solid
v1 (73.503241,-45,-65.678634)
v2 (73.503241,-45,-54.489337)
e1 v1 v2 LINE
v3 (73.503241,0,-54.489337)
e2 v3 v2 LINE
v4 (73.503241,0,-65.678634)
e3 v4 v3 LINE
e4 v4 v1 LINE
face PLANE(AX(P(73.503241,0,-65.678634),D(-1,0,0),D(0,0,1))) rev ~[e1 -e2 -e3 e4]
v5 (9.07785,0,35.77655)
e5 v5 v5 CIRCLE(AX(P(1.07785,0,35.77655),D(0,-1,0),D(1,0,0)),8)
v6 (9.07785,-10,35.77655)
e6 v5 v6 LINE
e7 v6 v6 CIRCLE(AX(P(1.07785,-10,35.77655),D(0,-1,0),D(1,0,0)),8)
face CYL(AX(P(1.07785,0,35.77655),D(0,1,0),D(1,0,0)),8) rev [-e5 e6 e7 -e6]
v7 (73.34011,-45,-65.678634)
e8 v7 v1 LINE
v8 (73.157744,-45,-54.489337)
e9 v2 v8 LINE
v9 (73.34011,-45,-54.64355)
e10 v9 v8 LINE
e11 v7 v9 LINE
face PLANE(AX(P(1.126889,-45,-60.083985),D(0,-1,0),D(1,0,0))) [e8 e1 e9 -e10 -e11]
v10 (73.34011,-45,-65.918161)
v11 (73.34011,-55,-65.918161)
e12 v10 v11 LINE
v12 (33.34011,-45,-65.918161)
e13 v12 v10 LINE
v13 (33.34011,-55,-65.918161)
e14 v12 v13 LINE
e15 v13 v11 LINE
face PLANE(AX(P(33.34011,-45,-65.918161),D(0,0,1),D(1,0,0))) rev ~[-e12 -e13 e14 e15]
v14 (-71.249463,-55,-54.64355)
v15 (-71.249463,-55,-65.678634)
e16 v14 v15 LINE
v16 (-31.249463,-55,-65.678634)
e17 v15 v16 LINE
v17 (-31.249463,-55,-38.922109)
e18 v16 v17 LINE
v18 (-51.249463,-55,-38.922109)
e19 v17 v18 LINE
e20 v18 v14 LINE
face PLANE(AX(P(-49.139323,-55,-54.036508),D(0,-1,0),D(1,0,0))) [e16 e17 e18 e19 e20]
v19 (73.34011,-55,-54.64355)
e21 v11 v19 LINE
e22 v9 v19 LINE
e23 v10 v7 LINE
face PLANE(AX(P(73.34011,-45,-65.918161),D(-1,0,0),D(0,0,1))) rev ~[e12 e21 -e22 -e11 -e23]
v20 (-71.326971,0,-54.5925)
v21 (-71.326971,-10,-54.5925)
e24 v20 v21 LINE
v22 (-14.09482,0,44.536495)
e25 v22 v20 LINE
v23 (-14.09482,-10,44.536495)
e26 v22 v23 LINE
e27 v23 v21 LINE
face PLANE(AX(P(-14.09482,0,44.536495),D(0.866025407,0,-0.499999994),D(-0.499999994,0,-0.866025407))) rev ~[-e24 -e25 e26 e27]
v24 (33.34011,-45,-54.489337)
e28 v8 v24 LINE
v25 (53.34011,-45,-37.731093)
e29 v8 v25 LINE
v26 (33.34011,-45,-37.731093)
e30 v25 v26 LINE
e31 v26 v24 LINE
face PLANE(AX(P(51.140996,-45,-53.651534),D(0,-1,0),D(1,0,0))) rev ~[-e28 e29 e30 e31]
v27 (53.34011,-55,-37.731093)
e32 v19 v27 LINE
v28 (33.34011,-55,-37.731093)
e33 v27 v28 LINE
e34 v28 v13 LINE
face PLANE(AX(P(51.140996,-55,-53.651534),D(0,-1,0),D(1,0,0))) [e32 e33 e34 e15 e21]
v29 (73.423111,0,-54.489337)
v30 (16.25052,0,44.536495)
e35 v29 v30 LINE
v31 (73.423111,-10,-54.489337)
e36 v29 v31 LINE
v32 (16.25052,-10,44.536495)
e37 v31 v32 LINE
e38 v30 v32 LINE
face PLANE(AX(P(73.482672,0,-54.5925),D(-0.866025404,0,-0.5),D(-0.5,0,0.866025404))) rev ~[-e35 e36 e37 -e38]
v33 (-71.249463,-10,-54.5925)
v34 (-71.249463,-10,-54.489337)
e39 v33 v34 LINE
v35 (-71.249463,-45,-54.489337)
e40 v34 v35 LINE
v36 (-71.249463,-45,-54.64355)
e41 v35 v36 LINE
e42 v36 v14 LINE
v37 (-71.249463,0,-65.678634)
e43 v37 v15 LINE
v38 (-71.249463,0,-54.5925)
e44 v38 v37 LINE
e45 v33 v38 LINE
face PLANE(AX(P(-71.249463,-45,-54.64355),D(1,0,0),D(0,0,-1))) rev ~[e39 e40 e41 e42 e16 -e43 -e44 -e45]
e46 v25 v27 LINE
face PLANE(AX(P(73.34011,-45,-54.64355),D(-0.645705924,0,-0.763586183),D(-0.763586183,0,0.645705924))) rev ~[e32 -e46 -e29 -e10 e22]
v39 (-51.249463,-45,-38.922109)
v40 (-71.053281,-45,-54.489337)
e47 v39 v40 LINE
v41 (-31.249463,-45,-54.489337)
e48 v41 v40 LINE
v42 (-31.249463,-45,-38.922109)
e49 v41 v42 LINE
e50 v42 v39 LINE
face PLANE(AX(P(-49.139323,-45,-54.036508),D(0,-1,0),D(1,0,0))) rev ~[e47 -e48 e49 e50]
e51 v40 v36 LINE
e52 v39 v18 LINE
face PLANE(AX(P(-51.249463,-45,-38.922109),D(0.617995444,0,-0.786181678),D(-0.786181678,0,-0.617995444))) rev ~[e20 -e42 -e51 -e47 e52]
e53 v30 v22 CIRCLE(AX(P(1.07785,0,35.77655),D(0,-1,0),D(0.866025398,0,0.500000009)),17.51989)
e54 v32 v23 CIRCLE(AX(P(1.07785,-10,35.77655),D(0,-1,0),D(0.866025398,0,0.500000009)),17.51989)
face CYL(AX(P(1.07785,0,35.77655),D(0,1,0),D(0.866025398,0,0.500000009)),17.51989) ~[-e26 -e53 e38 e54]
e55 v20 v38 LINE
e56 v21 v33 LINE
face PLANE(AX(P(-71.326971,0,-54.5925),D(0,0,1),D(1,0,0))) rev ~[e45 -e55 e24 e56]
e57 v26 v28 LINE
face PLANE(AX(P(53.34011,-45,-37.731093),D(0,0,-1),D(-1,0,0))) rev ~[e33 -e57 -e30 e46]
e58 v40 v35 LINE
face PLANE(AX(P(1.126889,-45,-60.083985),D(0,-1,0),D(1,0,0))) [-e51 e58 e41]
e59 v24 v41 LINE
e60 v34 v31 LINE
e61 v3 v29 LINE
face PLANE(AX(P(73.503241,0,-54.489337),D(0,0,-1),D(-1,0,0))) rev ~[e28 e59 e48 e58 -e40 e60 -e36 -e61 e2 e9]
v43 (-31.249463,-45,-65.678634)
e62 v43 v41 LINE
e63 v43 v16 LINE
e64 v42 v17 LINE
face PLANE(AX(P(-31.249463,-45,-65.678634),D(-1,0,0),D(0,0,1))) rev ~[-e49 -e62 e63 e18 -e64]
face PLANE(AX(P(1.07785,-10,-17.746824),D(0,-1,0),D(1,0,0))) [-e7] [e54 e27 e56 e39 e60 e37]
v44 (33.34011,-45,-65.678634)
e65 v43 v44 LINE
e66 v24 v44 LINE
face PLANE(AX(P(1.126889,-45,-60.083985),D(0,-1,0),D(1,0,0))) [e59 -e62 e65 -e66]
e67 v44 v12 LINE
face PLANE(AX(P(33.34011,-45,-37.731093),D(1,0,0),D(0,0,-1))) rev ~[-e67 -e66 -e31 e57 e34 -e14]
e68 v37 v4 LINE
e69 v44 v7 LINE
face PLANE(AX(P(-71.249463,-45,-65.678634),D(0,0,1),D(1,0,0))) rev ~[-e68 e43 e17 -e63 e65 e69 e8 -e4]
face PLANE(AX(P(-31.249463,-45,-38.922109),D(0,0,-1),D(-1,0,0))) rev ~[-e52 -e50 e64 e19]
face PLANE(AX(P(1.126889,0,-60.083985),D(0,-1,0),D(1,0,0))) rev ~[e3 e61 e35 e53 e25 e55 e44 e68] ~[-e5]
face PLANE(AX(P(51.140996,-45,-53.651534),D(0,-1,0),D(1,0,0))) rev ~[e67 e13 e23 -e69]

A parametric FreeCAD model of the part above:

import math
import FreeCAD as App
import Part
import Sketcher
Q = App.Units.Quantity


def add_polygon(sketch, points):
    """Adds a closed chain of lines whose ends are joined by coincident constraints."""
    first, n = sketch.GeometryCount, len(points)
    for a, b in zip(points, points[1:] + points[:1]):
        sketch.addGeometry(Part.LineSegment(App.Vector(*a, 0), App.Vector(*b, 0)), False)
    for i in range(n):
        sketch.addConstraint(Sketcher.Constraint("Coincident", first + i, 2, first + (i + 1) % n, 1))

doc = App.newDocument("Part")
body = doc.addObject("PartDesign::Body", "Body")

# Sketch on XZ plane
sketch1 = body.newObject("Sketcher::SketchObject", "Sketch")
sketch1.AttachmentSupport = (doc.getObject("XZ_Plane"), [""])
sketch1.MapMode = "FlatFace"
sketch1.addGeometry(Part.LineSegment(App.Vector(-14, 45, 0), App.Vector(-71, -55, 0)), False)
sketch1.addGeometry(Part.LineSegment(App.Vector(-71, -55, 0), App.Vector(73, -55, 0)), False)
sketch1.addGeometry(Part.LineSegment(App.Vector(73, -55, 0), App.Vector(16, 45, 0)), False)
sketch1.addGeometry(Part.ArcOfCircle(Part.Circle(App.Vector(1, 36, 0), App.Vector(0, 0, 1), 18), math.radians(30), math.radians(150)), False)
sketch1.addGeometry(Part.Circle(App.Vector(1, 36, 0), App.Vector(0, 0, 1), 8), False)
sketch1.addConstraint(Sketcher.Constraint("Coincident", 0, 2, 1, 1))
sketch1.addConstraint(Sketcher.Constraint("Coincident", 1, 2, 2, 1))
sketch1.addConstraint(Sketcher.Constraint("Tangent", 2, 2, 3, 1))
sketch1.addConstraint(Sketcher.Constraint("Tangent", 3, 2, 0, 1))
sketch1.addConstraint(Sketcher.Constraint("Horizontal", 1))
sketch1.addConstraint(Sketcher.Constraint("Coincident", 4, 3, 3, 3))
sketch1.addConstraint(Sketcher.Constraint("Horizontal", 2, 2, 3, 2))
sketch1.addConstraint(Sketcher.Constraint("Diameter", 4, Q("16 mm")))
sketch1.addConstraint(Sketcher.Constraint("Angle", 0, Q("-120 deg")))
sketch1.addConstraint(Sketcher.Constraint("Radius", 3, Q("17.51989 mm")))
sketch1.addConstraint(Sketcher.Constraint("DistanceY", 0, 2, -1, 1, Q("54.5925 mm")))
sketch1.addConstraint(Sketcher.Constraint("DistanceX", 1, 1, 1, 2, Q("144.809643 mm")))
sketch1.addConstraint(Sketcher.Constraint("DistanceX", -1, 1, 3, 3, Q("1.07785 mm")))
pad1 = body.newObject("PartDesign::Pad", "Pad")
pad1.Profile = sketch1
pad1.Length = 10

# Sketch on XZ plane
sketch2 = body.newObject("Sketcher::SketchObject", "Sketch001")
sketch2.AttachmentSupport = (doc.getObject("XZ_Plane"), [""])
sketch2.MapMode = "FlatFace"
add_polygon(sketch2, [(74, -54), (-71, -54), (-71, -66), (74, -66)])  # lines 0-3
sketch2.addConstraint(Sketcher.Constraint("Horizontal", 0))
sketch2.addConstraint(Sketcher.Constraint("Vertical", 1))
sketch2.addConstraint(Sketcher.Constraint("Horizontal", 2))
sketch2.addConstraint(Sketcher.Constraint("Vertical", 3))
sketch2.addConstraint(Sketcher.Constraint("DistanceX", 0, 2, 0, 1, Q("144.752704 mm")))
sketch2.addConstraint(Sketcher.Constraint("DistanceY", 1, 2, 1, 1, Q("11.189297 mm")))
sketch2.addConstraint(Sketcher.Constraint("DistanceX", -1, 1, 2, 2, Q("73.503241 mm")))
sketch2.addConstraint(Sketcher.Constraint("DistanceY", 0, 2, -1, 1, Q("54.489337 mm")))
pad2 = body.newObject("PartDesign::Pad", "Pad001")
pad2.Profile = sketch2
pad2.Length = 45

# Sketch on XZ plane
sketch3 = body.newObject("Sketcher::SketchObject", "Sketch002")
sketch3.AttachmentSupport = (doc.getObject("XZ_Plane"), [""])
sketch3.MapMode = "FlatFace"
sketch3.AttachmentOffset = App.Placement(App.Vector(0, 0, 45), App.Rotation())
add_polygon(sketch3, [(-71, -55), (-71, -66), (-31, -66), (-31, -39), (-51, -39)])  # lines 0-4
add_polygon(sketch3, [(33, -66), (73, -66), (73, -55), (53, -38), (33, -38)])  # lines 5-9
sketch3.addConstraint(Sketcher.Constraint("Vertical", 0))
sketch3.addConstraint(Sketcher.Constraint("Horizontal", 1))
sketch3.addConstraint(Sketcher.Constraint("Vertical", 2))
sketch3.addConstraint(Sketcher.Constraint("Horizontal", 3))
sketch3.addConstraint(Sketcher.Constraint("Horizontal", 5))
sketch3.addConstraint(Sketcher.Constraint("Vertical", 6))
sketch3.addConstraint(Sketcher.Constraint("Horizontal", 8))
sketch3.addConstraint(Sketcher.Constraint("Vertical", 9))
sketch3.addConstraint(Sketcher.Constraint("Horizontal", 4, 2, 6, 2))
sketch3.addConstraint(Sketcher.Constraint("Equal", 1, 5))
sketch3.addConstraint(Sketcher.Constraint("Equal", 3, 8))
sketch3.addConstraint(Sketcher.Constraint("DistanceX", 1, 1, 1, 2, Q("40 mm")))
sketch3.addConstraint(Sketcher.Constraint("DistanceX", 3, 2, 3, 1, Q("20 mm")))
sketch3.addConstraint(Sketcher.Constraint("DistanceY", 6, 1, 6, 2, Q("11.274611 mm")))
sketch3.addConstraint(Sketcher.Constraint("DistanceY", 0, 2, 0, 1, Q("11.035084 mm")))
sketch3.addConstraint(Sketcher.Constraint("DistanceY", 2, 1, 2, 2, Q("26.756525 mm")))
sketch3.addConstraint(Sketcher.Constraint("DistanceY", 9, 2, 9, 1, Q("28.187068 mm")))
sketch3.addConstraint(Sketcher.Constraint("DistanceY", 2, 2, -1, 1, Q("38.922109 mm")))
sketch3.addConstraint(Sketcher.Constraint("DistanceX", -1, 1, 5, 2, Q("73.34011 mm")))
sketch3.addConstraint(Sketcher.Constraint("DistanceX", 0, 2, -1, 1, Q("71.249463 mm")))
pad3 = body.newObject("PartDesign::Pad", "Pad002")
pad3.Profile = sketch3
pad3.Length = 10

doc.recompute()
